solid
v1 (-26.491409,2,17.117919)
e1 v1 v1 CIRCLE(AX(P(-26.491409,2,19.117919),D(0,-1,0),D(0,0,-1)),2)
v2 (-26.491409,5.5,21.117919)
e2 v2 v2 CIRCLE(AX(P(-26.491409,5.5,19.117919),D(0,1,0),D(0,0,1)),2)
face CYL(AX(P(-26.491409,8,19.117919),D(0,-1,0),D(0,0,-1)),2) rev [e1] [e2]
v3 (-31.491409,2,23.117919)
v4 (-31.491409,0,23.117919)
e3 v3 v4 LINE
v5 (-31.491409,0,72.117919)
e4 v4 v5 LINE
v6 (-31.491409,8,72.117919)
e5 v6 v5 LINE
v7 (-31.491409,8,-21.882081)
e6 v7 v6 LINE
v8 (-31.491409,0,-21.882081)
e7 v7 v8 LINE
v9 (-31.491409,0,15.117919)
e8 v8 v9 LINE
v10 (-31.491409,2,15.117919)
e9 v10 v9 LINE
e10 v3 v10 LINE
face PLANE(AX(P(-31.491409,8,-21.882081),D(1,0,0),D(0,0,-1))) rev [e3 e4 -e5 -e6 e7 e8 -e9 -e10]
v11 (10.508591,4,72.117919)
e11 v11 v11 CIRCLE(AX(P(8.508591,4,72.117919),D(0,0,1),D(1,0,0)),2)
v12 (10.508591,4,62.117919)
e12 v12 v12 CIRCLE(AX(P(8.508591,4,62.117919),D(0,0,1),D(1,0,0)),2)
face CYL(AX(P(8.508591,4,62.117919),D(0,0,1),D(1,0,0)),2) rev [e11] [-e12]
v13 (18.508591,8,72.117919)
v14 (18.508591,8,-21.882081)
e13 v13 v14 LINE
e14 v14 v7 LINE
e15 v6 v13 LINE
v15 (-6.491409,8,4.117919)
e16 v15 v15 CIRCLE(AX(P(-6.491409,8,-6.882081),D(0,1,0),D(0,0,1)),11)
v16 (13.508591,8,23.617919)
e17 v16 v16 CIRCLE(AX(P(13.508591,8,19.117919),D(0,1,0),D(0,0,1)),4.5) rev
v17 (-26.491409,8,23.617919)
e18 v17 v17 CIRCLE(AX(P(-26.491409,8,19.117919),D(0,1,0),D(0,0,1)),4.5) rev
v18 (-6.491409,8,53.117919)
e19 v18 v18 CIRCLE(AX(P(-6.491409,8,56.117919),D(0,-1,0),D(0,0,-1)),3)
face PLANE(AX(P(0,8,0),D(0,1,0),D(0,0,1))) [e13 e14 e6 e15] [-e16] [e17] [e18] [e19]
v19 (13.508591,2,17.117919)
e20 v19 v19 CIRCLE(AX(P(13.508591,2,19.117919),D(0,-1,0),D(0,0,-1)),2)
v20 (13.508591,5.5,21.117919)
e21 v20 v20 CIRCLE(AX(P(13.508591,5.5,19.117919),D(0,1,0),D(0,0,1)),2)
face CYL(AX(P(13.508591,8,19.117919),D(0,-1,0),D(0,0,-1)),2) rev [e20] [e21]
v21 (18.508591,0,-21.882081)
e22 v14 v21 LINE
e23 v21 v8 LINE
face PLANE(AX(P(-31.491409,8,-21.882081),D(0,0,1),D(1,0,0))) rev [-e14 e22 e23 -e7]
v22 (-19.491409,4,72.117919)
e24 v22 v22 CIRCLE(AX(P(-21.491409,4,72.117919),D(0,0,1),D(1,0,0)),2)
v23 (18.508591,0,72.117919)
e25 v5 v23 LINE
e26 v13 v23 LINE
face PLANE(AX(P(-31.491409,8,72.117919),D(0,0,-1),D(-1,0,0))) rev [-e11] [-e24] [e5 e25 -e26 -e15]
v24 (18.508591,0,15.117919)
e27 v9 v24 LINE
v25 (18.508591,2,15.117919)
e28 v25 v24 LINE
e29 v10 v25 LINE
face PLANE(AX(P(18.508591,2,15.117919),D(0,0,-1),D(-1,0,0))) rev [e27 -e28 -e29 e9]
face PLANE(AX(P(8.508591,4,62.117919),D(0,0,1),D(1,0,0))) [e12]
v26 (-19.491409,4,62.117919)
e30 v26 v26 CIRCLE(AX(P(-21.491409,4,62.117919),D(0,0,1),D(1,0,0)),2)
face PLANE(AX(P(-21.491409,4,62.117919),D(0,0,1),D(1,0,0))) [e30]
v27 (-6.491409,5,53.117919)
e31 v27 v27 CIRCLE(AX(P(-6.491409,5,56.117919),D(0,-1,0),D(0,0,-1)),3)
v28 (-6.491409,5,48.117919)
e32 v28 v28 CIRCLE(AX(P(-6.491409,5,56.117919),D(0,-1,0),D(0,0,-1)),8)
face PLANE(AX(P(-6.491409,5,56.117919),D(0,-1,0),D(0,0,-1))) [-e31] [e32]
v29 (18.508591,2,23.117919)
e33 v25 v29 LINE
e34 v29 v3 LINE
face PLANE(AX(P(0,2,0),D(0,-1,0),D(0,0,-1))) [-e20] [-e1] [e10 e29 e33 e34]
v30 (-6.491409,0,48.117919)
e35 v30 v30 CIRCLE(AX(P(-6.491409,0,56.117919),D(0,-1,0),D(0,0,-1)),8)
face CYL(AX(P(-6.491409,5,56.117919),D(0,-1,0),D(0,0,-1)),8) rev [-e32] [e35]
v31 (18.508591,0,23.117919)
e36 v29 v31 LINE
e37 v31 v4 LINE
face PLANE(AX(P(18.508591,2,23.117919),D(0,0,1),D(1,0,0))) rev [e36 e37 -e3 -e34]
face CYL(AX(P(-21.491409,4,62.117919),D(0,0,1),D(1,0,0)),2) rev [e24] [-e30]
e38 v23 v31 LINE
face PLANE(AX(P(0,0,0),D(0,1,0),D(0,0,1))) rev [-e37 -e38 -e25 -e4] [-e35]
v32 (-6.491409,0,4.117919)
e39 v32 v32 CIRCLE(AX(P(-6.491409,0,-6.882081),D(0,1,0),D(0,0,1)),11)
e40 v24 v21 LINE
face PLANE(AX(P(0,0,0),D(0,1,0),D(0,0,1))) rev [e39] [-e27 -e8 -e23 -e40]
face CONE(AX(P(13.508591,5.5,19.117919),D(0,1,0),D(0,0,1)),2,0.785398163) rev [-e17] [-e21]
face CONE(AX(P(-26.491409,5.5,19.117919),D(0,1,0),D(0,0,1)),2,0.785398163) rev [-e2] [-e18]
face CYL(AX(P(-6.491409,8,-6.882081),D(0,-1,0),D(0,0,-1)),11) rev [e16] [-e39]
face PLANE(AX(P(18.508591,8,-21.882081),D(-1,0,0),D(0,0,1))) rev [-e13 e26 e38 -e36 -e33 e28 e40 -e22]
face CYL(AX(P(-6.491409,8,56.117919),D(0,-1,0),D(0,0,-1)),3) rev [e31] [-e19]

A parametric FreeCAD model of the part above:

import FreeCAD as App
import Part
import Sketcher


def edges_at(feature, points):
    """Names of the edges that pass closest to the given points."""
    edges = feature.Shape.Edges
    near = lambda p: min(range(len(edges)), key=lambda i: edges[i].distToShape(Part.Vertex(*p))[0])
    return sorted({f"Edge{near(p) + 1}" for p in points})


def add_polygon(sketch, points):
    """Adds a closed chain of lines whose ends are joined by coincident constraints."""
    first, n = sketch.GeometryCount, len(points)
    for a, b in zip(points, points[1:] + points[:1]):
        sketch.addGeometry(Part.LineSegment(App.Vector(*a, 0), App.Vector(*b, 0)), False)
    for i in range(n):
        sketch.addConstraint(Sketcher.Constraint("Coincident", first + i, 2, first + (i + 1) % n, 1))

doc = App.newDocument("Part")
body = doc.addObject("PartDesign::Body", "Body")

# Sketch on XZ plane
sketch1 = body.newObject("Sketcher::SketchObject", "Sketch")
sketch1.AttachmentSupport = (doc.getObject("XZ_Plane"), [""])
sketch1.MapMode = "FlatFace"
add_polygon(sketch1, [(-31.491409, -21.882081), (-31.491409, 72.117919), (18.508591, 72.117919), (18.508591, -21.882081)])  # lines 0-3
sketch1.addGeometry(Part.Circle(App.Vector(-26.491409, 19.117919, 0), App.Vector(0, 0, 1), 2), False)  # 4
sketch1.addGeometry(Part.Circle(App.Vector(13.508591, 19.117919, 0), App.Vector(0, 0, 1), 2), False)  # 5
sketch1.addGeometry(Part.Circle(App.Vector(-6.491409, -6.882081, 0), App.Vector(0, 0, 1), 11), False)  # 6
sketch1.addConstraint(Sketcher.Constraint("Vertical", 0))
sketch1.addConstraint(Sketcher.Constraint("Horizontal", 1))
sketch1.addConstraint(Sketcher.Constraint("Vertical", 2))
sketch1.addConstraint(Sketcher.Constraint("Horizontal", 3))
sketch1.addConstraint(Sketcher.Constraint("Equal", 4, 5))
sketch1.addConstraint(Sketcher.Constraint("Horizontal", 4, 3, 5, 3))
sketch1.addConstraint(Sketcher.Constraint("Diameter", 4, 4.0))
sketch1.addConstraint(Sketcher.Constraint("Diameter", 6, 22.0))
sketch1.addConstraint(Sketcher.Constraint("DistanceX", 1, 1, 1, 2, 50.0))
sketch1.addConstraint(Sketcher.Constraint("DistanceY", 0, 1, 0, 2, 94.0))
sketch1.addConstraint(Sketcher.Constraint("DistanceX", 4, 3, 5, 3, 40.0))
sketch1.addConstraint(Sketcher.Constraint("DistanceX", 4, 3, 6, 3, 20.0))
sketch1.addConstraint(Sketcher.Constraint("DistanceY", 6, 3, 4, 3, 26.0))
sketch1.addConstraint(Sketcher.Constraint("DistanceX", 0, 2, 4, 3, 5.0))
sketch1.addConstraint(Sketcher.Constraint("DistanceY", 4, 3, 0, 2, 53.0))
sketch1.addConstraint(Sketcher.Constraint("DistanceX", 4, 3, -1, 1, 26.491409))
sketch1.addConstraint(Sketcher.Constraint("DistanceY", -1, 1, 4, 3, 19.117919))
pad1 = body.newObject("PartDesign::Pad", "Pad")
pad1.Profile = sketch1
pad1.Length = 8
pad1.Reversed = True
doc.recompute()

chamfer = body.newObject("PartDesign::Chamfer", "Chamfer")
chamfer.Base = (pad1, edges_at(pad1, [(-26.491, 8, 17.118), (13.509, 8, 17.118)]))
chamfer.Size = 2.5

# Sketch on XY plane
sketch2 = body.newObject("Sketcher::SketchObject", "Sketch001")
sketch2.AttachmentSupport = (doc.getObject("XY_Plane"), [""])
sketch2.MapMode = "FlatFace"
sketch2.AttachmentOffset = App.Placement(App.Vector(0, 0, 72.117919), App.Rotation())
sketch2.addGeometry(Part.Circle(App.Vector(-21.491409, 4, 0), App.Vector(0, 0, 1), 2), False)
sketch2.addGeometry(Part.Circle(App.Vector(8.508591, 4, 0), App.Vector(0, 0, 1), 2), False)
sketch2.addConstraint(Sketcher.Constraint("Equal", 0, 1))
sketch2.addConstraint(Sketcher.Constraint("Horizontal", 0, 3, 1, 3))
sketch2.addConstraint(Sketcher.Constraint("Diameter", 0, 4.0))
sketch2.addConstraint(Sketcher.Constraint("DistanceY", -1, 1, 0, 3, 4.0))
sketch2.addConstraint(Sketcher.Constraint("DistanceX", 0, 3, 1, 3, 30.0))
sketch2.addConstraint(Sketcher.Constraint("DistanceX", 0, 3, -1, 1, 21.491409))
pocket1 = body.newObject("PartDesign::Pocket", "Pocket")
pocket1.Profile = sketch2
pocket1.Length = 10

# Sketch on XZ plane
sketch3 = body.newObject("Sketcher::SketchObject", "Sketch002")
sketch3.AttachmentSupport = (doc.getObject("XZ_Plane"), [""])
sketch3.MapMode = "FlatFace"
sketch3.addGeometry(Part.Circle(App.Vector(-6.491409, 56.117919, 0), App.Vector(0, 0, 1), 8), False)
sketch3.addConstraint(Sketcher.Constraint("Diameter", 0, 16.0))
sketch3.addConstraint(Sketcher.Constraint("DistanceX", 0, 3, -1, 1, 6.491409))
sketch3.addConstraint(Sketcher.Constraint("DistanceY", -1, 1, 0, 3, 56.117919))
pocket2 = body.newObject("PartDesign::Pocket", "Pocket001")
pocket2.Profile = sketch3
pocket2.Length = 5

# Sketch on XZ plane
sketch4 = body.newObject("Sketcher::SketchObject", "Sketch003")
sketch4.AttachmentSupport = (doc.getObject("XZ_Plane"), [""])
sketch4.MapMode = "FlatFace"
sketch4.AttachmentOffset = App.Placement(App.Vector(0, 0, -5), App.Rotation())
sketch4.addGeometry(Part.Circle(App.Vector(-6.491409, 56.117919, 0), App.Vector(0, 0, 1), 3), False)
sketch4.addConstraint(Sketcher.Constraint("Diameter", 0, 6.0))
sketch4.addConstraint(Sketcher.Constraint("DistanceX", 0, 3, -1, 1, 6.491409))
sketch4.addConstraint(Sketcher.Constraint("DistanceY", -1, 1, 0, 3, 56.117919))
pocket3 = body.newObject("PartDesign::Pocket", "Pocket002")
pocket3.Profile = sketch4
pocket3.Type = "ThroughAll"

# Sketch on XZ plane
sketch5 = body.newObject("Sketcher::SketchObject", "Sketch004")
sketch5.AttachmentSupport = (doc.getObject("XZ_Plane"), [""])
sketch5.MapMode = "FlatFace"
add_polygon(sketch5, [(-31.491409, 23.117919), (-31.491409, 15.117919), (18.508591, 15.117919), (18.508591, 23.117919)])  # lines 0-3
sketch5.addConstraint(Sketcher.Constraint("Vertical", 0))
sketch5.addConstraint(Sketcher.Constraint("Horizontal", 1))
sketch5.addConstraint(Sketcher.Constraint("Vertical", 2))
sketch5.addConstraint(Sketcher.Constraint("Horizontal", 3))
sketch5.addConstraint(Sketcher.Constraint("DistanceX", 1, 1, 1, 2, 50.0))
sketch5.addConstraint(Sketcher.Constraint("DistanceY", 0, 2, 0, 1, 8.0))
sketch5.addConstraint(Sketcher.Constraint("DistanceX", 0, 2, -1, 1, 31.491409))
sketch5.addConstraint(Sketcher.Constraint("DistanceY", -1, 1, 0, 2, 15.117919))
pocket4 = body.newObject("PartDesign::Pocket", "Pocket003")
pocket4.Profile = sketch5
pocket4.Length = 2

doc.recompute()
